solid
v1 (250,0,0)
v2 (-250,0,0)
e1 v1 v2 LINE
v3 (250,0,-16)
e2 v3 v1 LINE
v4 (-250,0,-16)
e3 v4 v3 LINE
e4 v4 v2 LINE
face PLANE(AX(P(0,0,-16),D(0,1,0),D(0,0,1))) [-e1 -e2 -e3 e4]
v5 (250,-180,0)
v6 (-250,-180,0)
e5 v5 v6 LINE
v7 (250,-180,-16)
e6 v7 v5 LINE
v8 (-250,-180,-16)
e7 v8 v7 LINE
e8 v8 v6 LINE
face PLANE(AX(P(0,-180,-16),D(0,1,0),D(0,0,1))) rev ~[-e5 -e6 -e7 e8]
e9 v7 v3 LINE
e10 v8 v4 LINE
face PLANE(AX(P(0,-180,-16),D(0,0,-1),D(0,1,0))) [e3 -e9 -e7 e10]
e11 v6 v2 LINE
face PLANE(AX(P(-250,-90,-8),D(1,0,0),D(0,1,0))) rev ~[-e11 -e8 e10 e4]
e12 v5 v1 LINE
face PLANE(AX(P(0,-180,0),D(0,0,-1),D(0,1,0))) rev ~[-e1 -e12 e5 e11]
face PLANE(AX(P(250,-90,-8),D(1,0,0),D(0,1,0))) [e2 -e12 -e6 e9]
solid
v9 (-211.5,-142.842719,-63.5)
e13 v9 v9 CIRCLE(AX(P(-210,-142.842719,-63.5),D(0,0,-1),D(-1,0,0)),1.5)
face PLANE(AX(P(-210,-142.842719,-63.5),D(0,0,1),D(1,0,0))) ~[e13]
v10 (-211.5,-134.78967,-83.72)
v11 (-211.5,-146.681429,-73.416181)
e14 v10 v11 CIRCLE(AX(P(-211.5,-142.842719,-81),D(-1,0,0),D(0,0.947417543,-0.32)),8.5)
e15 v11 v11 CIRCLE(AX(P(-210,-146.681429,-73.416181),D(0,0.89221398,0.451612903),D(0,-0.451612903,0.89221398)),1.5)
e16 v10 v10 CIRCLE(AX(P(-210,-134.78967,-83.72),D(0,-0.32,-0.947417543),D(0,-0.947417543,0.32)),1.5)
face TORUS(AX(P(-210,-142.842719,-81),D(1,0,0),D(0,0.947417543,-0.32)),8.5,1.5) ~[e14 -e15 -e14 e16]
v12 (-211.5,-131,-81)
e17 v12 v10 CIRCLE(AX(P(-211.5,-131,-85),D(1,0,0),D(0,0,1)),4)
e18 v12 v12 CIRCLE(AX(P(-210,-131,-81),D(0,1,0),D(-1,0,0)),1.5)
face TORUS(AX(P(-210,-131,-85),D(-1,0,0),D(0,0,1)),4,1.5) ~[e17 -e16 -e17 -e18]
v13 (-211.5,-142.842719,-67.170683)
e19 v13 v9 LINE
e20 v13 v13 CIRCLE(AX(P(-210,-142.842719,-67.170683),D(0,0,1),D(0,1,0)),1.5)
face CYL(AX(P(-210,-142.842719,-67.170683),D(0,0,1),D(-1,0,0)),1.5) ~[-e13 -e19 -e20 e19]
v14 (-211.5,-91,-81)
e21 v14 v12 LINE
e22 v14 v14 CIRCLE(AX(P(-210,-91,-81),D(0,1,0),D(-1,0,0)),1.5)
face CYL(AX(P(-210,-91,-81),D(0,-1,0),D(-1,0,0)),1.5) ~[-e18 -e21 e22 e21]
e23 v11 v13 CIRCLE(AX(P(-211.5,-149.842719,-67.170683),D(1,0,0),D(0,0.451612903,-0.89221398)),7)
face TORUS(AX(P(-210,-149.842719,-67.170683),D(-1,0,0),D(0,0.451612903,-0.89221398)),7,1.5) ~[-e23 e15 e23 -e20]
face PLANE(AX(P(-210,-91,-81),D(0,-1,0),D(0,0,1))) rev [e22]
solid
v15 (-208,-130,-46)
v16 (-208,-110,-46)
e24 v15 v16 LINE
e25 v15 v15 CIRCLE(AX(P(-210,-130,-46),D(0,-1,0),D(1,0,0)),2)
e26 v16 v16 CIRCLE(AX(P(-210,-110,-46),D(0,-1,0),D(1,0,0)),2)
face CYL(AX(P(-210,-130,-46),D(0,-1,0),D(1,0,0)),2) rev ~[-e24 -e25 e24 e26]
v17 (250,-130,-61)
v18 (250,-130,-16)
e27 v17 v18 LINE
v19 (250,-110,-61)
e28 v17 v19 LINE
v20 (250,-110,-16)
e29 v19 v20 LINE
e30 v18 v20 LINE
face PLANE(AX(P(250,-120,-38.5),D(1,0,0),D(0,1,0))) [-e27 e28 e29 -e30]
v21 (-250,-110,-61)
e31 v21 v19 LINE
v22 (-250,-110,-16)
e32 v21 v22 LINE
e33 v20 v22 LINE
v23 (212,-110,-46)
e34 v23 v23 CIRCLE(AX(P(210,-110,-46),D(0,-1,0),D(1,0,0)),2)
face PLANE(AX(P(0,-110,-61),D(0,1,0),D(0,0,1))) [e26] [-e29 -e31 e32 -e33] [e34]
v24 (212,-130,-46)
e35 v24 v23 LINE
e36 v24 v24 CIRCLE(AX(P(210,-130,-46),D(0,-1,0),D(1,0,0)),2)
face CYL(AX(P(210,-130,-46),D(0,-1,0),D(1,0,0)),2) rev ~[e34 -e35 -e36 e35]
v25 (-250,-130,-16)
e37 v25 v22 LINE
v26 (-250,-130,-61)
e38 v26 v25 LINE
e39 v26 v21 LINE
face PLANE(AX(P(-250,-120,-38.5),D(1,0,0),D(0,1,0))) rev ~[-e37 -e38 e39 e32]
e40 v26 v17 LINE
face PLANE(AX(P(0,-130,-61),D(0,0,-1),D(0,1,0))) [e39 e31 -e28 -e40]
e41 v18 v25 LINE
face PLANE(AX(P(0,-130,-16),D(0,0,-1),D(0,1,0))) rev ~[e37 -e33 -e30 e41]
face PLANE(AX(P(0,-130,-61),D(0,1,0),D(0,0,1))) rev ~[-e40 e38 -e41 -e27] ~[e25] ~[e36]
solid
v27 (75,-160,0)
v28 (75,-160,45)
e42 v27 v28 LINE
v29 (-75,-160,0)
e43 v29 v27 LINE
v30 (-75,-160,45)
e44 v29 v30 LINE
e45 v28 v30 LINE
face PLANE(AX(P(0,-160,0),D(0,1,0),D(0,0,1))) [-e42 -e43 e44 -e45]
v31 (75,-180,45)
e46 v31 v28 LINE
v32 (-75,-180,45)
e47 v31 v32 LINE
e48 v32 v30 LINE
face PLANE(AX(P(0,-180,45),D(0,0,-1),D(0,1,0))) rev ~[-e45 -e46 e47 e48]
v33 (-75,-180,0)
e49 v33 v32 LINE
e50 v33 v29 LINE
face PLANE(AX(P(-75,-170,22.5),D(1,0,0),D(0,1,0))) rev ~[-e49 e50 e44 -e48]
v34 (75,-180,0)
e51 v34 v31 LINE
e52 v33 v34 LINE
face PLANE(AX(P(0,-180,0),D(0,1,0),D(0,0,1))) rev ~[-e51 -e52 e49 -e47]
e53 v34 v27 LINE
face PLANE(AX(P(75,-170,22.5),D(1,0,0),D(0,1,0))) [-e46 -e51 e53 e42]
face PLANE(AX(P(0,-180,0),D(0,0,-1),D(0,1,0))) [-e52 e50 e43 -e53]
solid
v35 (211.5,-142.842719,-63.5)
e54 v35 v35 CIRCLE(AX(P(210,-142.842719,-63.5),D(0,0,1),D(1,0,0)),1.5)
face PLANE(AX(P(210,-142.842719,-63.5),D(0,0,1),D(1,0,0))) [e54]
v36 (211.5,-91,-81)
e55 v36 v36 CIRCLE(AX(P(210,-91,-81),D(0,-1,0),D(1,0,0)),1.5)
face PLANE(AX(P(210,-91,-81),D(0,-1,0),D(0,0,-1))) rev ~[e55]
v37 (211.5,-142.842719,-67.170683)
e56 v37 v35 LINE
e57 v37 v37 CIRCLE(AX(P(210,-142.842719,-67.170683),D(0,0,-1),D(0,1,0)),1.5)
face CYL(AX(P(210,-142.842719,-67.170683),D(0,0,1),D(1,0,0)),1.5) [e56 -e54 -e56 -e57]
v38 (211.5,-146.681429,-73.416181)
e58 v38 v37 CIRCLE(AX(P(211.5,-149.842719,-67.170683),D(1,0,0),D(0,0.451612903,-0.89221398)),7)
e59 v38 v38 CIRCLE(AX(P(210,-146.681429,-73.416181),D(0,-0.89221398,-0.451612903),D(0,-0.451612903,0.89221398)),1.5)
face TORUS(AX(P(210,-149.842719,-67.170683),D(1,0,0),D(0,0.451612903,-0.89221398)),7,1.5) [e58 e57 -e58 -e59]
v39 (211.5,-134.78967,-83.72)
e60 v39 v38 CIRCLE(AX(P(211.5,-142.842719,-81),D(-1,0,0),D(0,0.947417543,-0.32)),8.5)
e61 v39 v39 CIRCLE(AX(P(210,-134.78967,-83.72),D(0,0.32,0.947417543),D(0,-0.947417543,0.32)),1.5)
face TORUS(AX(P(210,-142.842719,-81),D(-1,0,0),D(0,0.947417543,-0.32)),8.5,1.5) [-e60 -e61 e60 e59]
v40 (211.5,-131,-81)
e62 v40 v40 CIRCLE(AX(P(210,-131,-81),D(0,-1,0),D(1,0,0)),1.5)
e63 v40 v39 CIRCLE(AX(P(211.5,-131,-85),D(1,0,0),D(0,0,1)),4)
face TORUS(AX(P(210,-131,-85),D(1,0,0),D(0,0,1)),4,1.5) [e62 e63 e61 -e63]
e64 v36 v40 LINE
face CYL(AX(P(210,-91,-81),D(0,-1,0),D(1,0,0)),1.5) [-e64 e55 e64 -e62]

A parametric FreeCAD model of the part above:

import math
import FreeCAD as App
import Part
import Sketcher
from FreeCAD import Vector
Q = App.Units.Quantity


def add_polygon(sketch, points):
    """Adds a closed chain of lines whose ends are joined by coincident constraints."""
    first, n = sketch.GeometryCount, len(points)
    for a, b in zip(points, points[1:] + points[:1]):
        sketch.addGeometry(Part.LineSegment(App.Vector(*a, 0), App.Vector(*b, 0)), False)
    for i in range(n):
        sketch.addConstraint(Sketcher.Constraint("Coincident", first + i, 2, first + (i + 1) % n, 1))

doc = App.newDocument("Part")
body = doc.addObject("PartDesign::Body", "Body")

sketch1 = body.newObject("Sketcher::SketchObject", "Sketch")
sketch1.AttachmentSupport = (doc.getObject("YZ_Plane"), [""])
sketch1.MapMode = "FlatFace"
add_polygon(sketch1, [(-180, 0), (-180, -16), (0, -16), (0, 0)])
sketch1.addConstraint([
    Sketcher.Constraint("Vertical", 0),
    Sketcher.Constraint("Horizontal", 1),
    Sketcher.Constraint("Vertical", 2),
    Sketcher.Constraint("Horizontal", 3),
    Sketcher.Constraint("Coincident", 2, 2, -1, 1),
    Sketcher.Constraint("DistanceX", 1, 1, 1, 2, Q("180 mm")),
    Sketcher.Constraint("DistanceY", 0, 2, 0, 1, Q("16 mm")),
])
pad1 = body.newObject("PartDesign::Pad", "Pad")
pad1.Profile = sketch1
pad1.Length = 500
pad1.Midplane = True
body2 = doc.addObject("PartDesign::Body", "Body001")

sketch2 = body2.newObject("Sketcher::SketchObject", "Sketch001")
sketch2.AttachmentSupport = (doc.getObject("YZ_Plane001"), [""])
sketch2.MapMode = "FlatFace"
add_polygon(sketch2, [(-130, -16), (-130, -61), (-110, -61), (-110, -16)])
sketch2.addConstraint([
    Sketcher.Constraint("Vertical", 0),
    Sketcher.Constraint("Horizontal", 1),
    Sketcher.Constraint("Vertical", 2),
    Sketcher.Constraint("Horizontal", 3),
    Sketcher.Constraint("DistanceX", 1, 1, 1, 2, Q("20 mm")),
    Sketcher.Constraint("DistanceY", 0, 2, 0, 1, Q("45 mm")),
    Sketcher.Constraint("DistanceX", 0, 2, -1, 1, Q("130 mm")),
    Sketcher.Constraint("DistanceY", 0, 2, -1, 1, Q("61 mm")),
])
pad2 = body2.newObject("PartDesign::Pad", "Pad001")
pad2.Profile = sketch2
pad2.Type = "TwoLengths"
pad2.Length = 250
pad2.Length2 = 250

sketch3 = body2.newObject("Sketcher::SketchObject", "Sketch002")
sketch3.AttachmentSupport = (doc.getObject("XZ_Plane001"), [""])
sketch3.MapMode = "FlatFace"
sketch3.AttachmentOffset = App.Placement(Vector(0, 0, 130), App.Rotation())
sketch3.addGeometry([
    Part.Circle(Vector(210, -46, 0), Vector(0, 0, 1), 2),
    Part.Circle(Vector(-210, -46, 0), Vector(0, 0, 1), 2),
], False)
sketch3.addConstraint([
    Sketcher.Constraint("Equal", 0, 1),
    Sketcher.Constraint("Symmetric", 0, 3, 1, 3, -2),
    Sketcher.Constraint("Diameter", 0, Q("4 mm")),
    Sketcher.Constraint("DistanceX", -1, 1, 0, 3, Q("210 mm")),
    Sketcher.Constraint("DistanceY", 0, 3, -1, 1, Q("46 mm")),
])
pocket1 = body2.newObject("PartDesign::Pocket", "Pocket")
pocket1.Profile = sketch3
pocket1.Type = "ThroughAll"
body3 = doc.addObject("PartDesign::Body", "Body002")

sketch4 = body3.newObject("Sketcher::SketchObject", "Sketch003")
sketch4.AttachmentSupport = (doc.getObject("XY_Plane002"), [""])
sketch4.MapMode = "FlatFace"
sketch4.AttachmentOffset = App.Placement(Vector(0, 0, -63.5), App.Rotation())
sketch4.addGeometry(Part.Circle(Vector(210, -142.842719, 0), Vector(0, 0, 1), 1.5), False)
sketch4.addConstraint([
    Sketcher.Constraint("Diameter", 0, Q("3 mm")),
    Sketcher.Constraint("DistanceX", -1, 1, 0, 3, Q("210 mm")),
    Sketcher.Constraint("DistanceY", 0, 3, -1, 1, Q("142.842719 mm")),
])

sketch5 = body3.newObject("Sketcher::SketchObject", "Sketch004")
sketch5.AttachmentSupport = (doc.getObject("YZ_Plane002"), [""])
sketch5.MapMode = "FlatFace"
sketch5.AttachmentOffset = App.Placement(Vector(0, 0, 210), App.Rotation())
sketch5.addGeometry([
    Part.LineSegment(Vector(-91, -81, 0), Vector(-131, -81, 0)),
    Part.ArcOfCircle(Part.Circle(Vector(-131, -85, 0), Vector(0, 0, 1), 4), math.radians(90), math.radians(161.337075)),
    Part.ArcOfCircle(Part.Circle(Vector(-142.842719, -81, 0), Vector(0, 0, 1), 8.5), math.radians(116.847213), math.radians(341.337075)),
    Part.ArcOfCircle(Part.Circle(Vector(-149.842719, -67.170683, 0), Vector(0, 0, 1), 7), math.radians(-63.152787), math.radians(0)),
    Part.LineSegment(Vector(-142.842719, -67.170683, 0), Vector(-142.842719, -63.5, 0)),
], False)
sketch5.addConstraint([
    Sketcher.Constraint("Tangent", 0, 2, 1, 1),
    Sketcher.Constraint("Tangent", 1, 2, 2, 2),
    Sketcher.Constraint("Tangent", 2, 1, 3, 1),
    Sketcher.Constraint("Tangent", 3, 2, 4, 1),
    Sketcher.Constraint("Horizontal", 0),
    Sketcher.Constraint("Vertical", 4),
    Sketcher.Constraint("Horizontal", 2, 3, 0, 1),
    Sketcher.Constraint("Vertical", 2, 3, 3, 2),
    Sketcher.Constraint("Radius", 1, Q("4 mm")),
    Sketcher.Constraint("Radius", 3, Q("7 mm")),
    Sketcher.Constraint("Radius", 2, Q("8.5 mm")),
    Sketcher.Constraint("DistanceX", 0, 2, 0, 1, Q("40 mm")),
    Sketcher.Constraint("DistanceX", 1, 3, -1, 1, Q("131 mm")),
    Sketcher.Constraint("DistanceY", 1, 3, -1, 1, Q("85 mm")),
    Sketcher.Constraint("DistanceY", 4, 2, -1, 1, Q("63.5 mm")),
])
doc.recompute()

additivepipe = body3.newObject("PartDesign::AdditivePipe", "AdditivePipe")
additivepipe.Profile = sketch4
additivepipe.Spine = (sketch5, ["Edge1", "Edge2", "Edge3", "Edge4", "Edge5"])
body4 = doc.addObject("PartDesign::Body", "Body003")
doc.recompute()

mirroring = doc.addObject("Part::Mirroring", "Mirroring")
mirroring.Source = body3
mirroring.Base = Vector(0, 0, 0)
mirroring.Normal = Vector(1, 0, 0)
body4.BaseFeature = mirroring
doc.recompute()
body5 = doc.addObject("PartDesign::Body", "Body004")

sketch6 = body5.newObject("Sketcher::SketchObject", "Sketch005")
sketch6.AttachmentSupport = (doc.getObject("YZ_Plane004"), [""])
sketch6.MapMode = "FlatFace"
add_polygon(sketch6, [(-180, 45), (-180, 0), (-160, 0), (-160, 45)])
sketch6.addConstraint([
    Sketcher.Constraint("Vertical", 0),
    Sketcher.Constraint("Horizontal", 1),
    Sketcher.Constraint("Vertical", 2),
    Sketcher.Constraint("Horizontal", 3),
    Sketcher.Constraint("PointOnObject", 0, 2, -1),
    Sketcher.Constraint("DistanceX", 1, 1, 1, 2, Q("20 mm")),
    Sketcher.Constraint("DistanceY", 0, 2, 0, 1, Q("45 mm")),
    Sketcher.Constraint("DistanceX", 0, 2, -1, 1, Q("180 mm")),
])
pad3 = body5.newObject("PartDesign::Pad", "Pad002")
pad3.Profile = sketch6
pad3.Length = 150
pad3.Midplane = True
mirroring.Visibility = False

doc.recompute()
